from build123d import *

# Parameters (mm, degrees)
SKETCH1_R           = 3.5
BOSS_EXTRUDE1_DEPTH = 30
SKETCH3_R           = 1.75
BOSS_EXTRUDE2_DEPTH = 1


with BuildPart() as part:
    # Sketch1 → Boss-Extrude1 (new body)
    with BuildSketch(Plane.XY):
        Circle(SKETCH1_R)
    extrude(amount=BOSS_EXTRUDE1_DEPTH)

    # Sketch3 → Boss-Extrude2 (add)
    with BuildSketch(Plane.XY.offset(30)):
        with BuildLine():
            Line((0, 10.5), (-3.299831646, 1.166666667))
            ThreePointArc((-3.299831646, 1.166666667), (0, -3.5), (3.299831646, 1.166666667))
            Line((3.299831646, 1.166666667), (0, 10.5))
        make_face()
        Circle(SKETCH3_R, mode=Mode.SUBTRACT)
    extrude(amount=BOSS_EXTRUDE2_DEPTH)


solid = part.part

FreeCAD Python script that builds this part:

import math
import FreeCAD as App
import Part
import Sketcher

V = App.Vector

doc = App.newDocument("Part")
body = doc.addObject("PartDesign::Body", "Body")

sketch1 = doc.addObject("Sketcher::SketchObject", "Sketch")
body.addObject(sketch1)
sketch1.AttachmentSupport = (doc.XY_Plane, [""])
sketch1.MapMode = "FlatFace"
sketch1.addGeometry(Part.Circle(V(0, 0, 0), V(0, 0, 1), 3.5), False)
sketch1.addConstraint(Sketcher.Constraint("Coincident", 0, 3, -1, 1))
sketch1.addConstraint(Sketcher.Constraint("Diameter", 0, 7.0))
pad1 = doc.addObject("PartDesign::Pad", "Pad")
body.addObject(pad1)
pad1.Profile = sketch1
pad1.Length = 30

sketch2 = doc.addObject("Sketcher::SketchObject", "Sketch001")
body.addObject(sketch2)
sketch2.AttachmentSupport = (doc.XY_Plane, [""])
sketch2.MapMode = "FlatFace"
sketch2.AttachmentOffset = App.Placement(V(0, 0, 30), App.Rotation())
sketch2.addGeometry(Part.LineSegment(V(0, 10.5, 0), V(-3.3, 1.2, 0)), False)
sketch2.addGeometry(Part.ArcOfCircle(Part.Circle(V(0, 0, 0), V(0, 0, 1), 3.5), math.radians(161), math.radians(379)), False)
sketch2.addGeometry(Part.LineSegment(V(3.3, 1.2, 0), V(0, 10.5, 0)), False)
sketch2.addGeometry(Part.Circle(V(0, 0, 0), V(0, 0, 1), 1.8), False)
sketch2.addConstraint(Sketcher.Constraint("Tangent", 0, 2, 1, 1))
sketch2.addConstraint(Sketcher.Constraint("Tangent", 1, 2, 2, 1))
sketch2.addConstraint(Sketcher.Constraint("Coincident", 2, 2, 0, 1))
sketch2.addConstraint(Sketcher.Constraint("Coincident", 1, 3, -1, 1))
sketch2.addConstraint(Sketcher.Constraint("Coincident", 3, 3, -1, 1))
sketch2.addConstraint(Sketcher.Constraint("PointOnObject", 2, 2, -2))
sketch2.addConstraint(Sketcher.Constraint("Diameter", 3, 3.5))
sketch2.addConstraint(Sketcher.Constraint("Radius", 1, 3.5))
sketch2.addConstraint(Sketcher.Constraint("DistanceY", -1, 1, 2, 2, 10.5))
pad2 = doc.addObject("PartDesign::Pad", "Pad001")
body.addObject(pad2)
pad2.Profile = sketch2
pad2.Length = 1

doc.recompute()
